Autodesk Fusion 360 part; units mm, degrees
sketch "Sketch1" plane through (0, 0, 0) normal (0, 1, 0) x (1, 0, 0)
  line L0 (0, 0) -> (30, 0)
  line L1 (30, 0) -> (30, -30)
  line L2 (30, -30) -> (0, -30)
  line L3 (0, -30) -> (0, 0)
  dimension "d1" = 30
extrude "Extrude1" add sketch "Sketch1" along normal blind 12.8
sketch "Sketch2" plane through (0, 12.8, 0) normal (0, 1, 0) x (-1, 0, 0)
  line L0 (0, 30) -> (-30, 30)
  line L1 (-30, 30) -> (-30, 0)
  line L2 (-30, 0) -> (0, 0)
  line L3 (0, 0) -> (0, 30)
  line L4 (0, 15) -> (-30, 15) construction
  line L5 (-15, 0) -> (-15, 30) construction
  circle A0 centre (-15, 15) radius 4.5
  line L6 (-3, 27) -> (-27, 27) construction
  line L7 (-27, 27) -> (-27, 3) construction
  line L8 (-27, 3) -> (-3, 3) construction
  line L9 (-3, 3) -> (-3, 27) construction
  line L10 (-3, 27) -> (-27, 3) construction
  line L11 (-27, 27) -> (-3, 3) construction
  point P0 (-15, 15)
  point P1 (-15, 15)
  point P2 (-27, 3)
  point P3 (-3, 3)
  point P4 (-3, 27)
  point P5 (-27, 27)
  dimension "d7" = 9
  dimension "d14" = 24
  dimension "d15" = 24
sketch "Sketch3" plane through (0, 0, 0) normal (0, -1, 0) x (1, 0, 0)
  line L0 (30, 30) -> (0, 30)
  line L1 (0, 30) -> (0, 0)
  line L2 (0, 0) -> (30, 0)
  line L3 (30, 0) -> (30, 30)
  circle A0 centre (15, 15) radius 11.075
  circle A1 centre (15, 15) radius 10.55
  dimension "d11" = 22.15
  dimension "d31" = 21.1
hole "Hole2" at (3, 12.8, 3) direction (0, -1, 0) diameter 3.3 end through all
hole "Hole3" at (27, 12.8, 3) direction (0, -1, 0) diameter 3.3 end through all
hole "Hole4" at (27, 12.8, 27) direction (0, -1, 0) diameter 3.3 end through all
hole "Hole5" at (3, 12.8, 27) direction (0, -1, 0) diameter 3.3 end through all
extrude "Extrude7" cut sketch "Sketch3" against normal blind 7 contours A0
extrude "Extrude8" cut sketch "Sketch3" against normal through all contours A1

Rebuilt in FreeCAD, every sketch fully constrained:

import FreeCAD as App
import Part
import Sketcher
from FreeCAD import Vector
Q = App.Units.Quantity


def add_polygon(sketch, points):
    """Adds a closed chain of lines whose ends are joined by coincident constraints."""
    first, n = sketch.GeometryCount, len(points)
    for a, b in zip(points, points[1:] + points[:1]):
        sketch.addGeometry(Part.LineSegment(App.Vector(*a, 0), App.Vector(*b, 0)), False)
    for i in range(n):
        sketch.addConstraint(Sketcher.Constraint("Coincident", first + i, 2, first + (i + 1) % n, 1))

doc = App.newDocument("Part")
body = doc.addObject("PartDesign::Body", "Body")

# Sketch on XZ plane
sketch1 = body.newObject("Sketcher::SketchObject", "Sketch")
sketch1.AttachmentSupport = (doc.getObject("XZ_Plane"), [""])
sketch1.MapMode = "FlatFace"
add_polygon(sketch1, [(30, 0), (0, 0), (0, 30), (30, 30)])  # lines 0-3
sketch1.addConstraint(Sketcher.Constraint("Horizontal", 0))
sketch1.addConstraint(Sketcher.Constraint("Vertical", 1))
sketch1.addConstraint(Sketcher.Constraint("Horizontal", 2))
sketch1.addConstraint(Sketcher.Constraint("Vertical", 3))
sketch1.addConstraint(Sketcher.Constraint("Coincident", 0, 2, -1, 1))
sketch1.addConstraint(Sketcher.Constraint("Equal", 2, 1))
sketch1.addConstraint(Sketcher.Constraint("DistanceX", 0, 2, 0, 1, Q("30 mm")))
pad1 = body.newObject("PartDesign::Pad", "Pad")
pad1.Profile = sketch1
pad1.Length = 12.8
pad1.Reversed = True

# Sketch on XZ plane
sketch2 = body.newObject("Sketcher::SketchObject", "Sketch001")
sketch2.AttachmentSupport = (doc.getObject("XZ_Plane"), [""])
sketch2.MapMode = "FlatFace"
sketch2.AttachmentOffset = App.Placement(Vector(0, 0, -12.8), App.Rotation())
sketch2.addGeometry(Part.Circle(Vector(3, 3, 0), Vector(0, 0, 1), 1.65), False)
sketch2.addConstraint(Sketcher.Constraint("Diameter", 0, Q("3.3 mm")))
sketch2.addConstraint(Sketcher.Constraint("DistanceX", -1, 1, 0, 3, Q("3 mm")))
sketch2.addConstraint(Sketcher.Constraint("DistanceY", -1, 1, 0, 3, Q("3 mm")))
doc.recompute()
hole = body.newObject("PartDesign::Hole", "Hole")
hole.Profile = sketch2
hole.ThreadType = "None"
hole.Diameter = 3.3
hole.DepthType = "ThroughAll"
hole.Reversed = True

# Sketch on XZ plane
sketch3 = body.newObject("Sketcher::SketchObject", "Sketch002")
sketch3.AttachmentSupport = (doc.getObject("XZ_Plane"), [""])
sketch3.MapMode = "FlatFace"
sketch3.AttachmentOffset = App.Placement(Vector(0, 0, -12.8), App.Rotation())
sketch3.addGeometry(Part.Circle(Vector(27, 3, 0), Vector(0, 0, 1), 1.65), False)
sketch3.addConstraint(Sketcher.Constraint("Diameter", 0, Q("3.3 mm")))
sketch3.addConstraint(Sketcher.Constraint("DistanceX", -1, 1, 0, 3, Q("27 mm")))
sketch3.addConstraint(Sketcher.Constraint("DistanceY", -1, 1, 0, 3, Q("3 mm")))
doc.recompute()
hole2 = body.newObject("PartDesign::Hole", "Hole001")
hole2.Profile = sketch3
hole2.ThreadType = "None"
hole2.Diameter = 3.3
hole2.DepthType = "ThroughAll"
hole2.Reversed = True

# Sketch on XZ plane
sketch4 = body.newObject("Sketcher::SketchObject", "Sketch003")
sketch4.AttachmentSupport = (doc.getObject("XZ_Plane"), [""])
sketch4.MapMode = "FlatFace"
sketch4.AttachmentOffset = App.Placement(Vector(0, 0, -12.8), App.Rotation())
sketch4.addGeometry(Part.Circle(Vector(27, 27, 0), Vector(0, 0, 1), 1.65), False)
sketch4.addConstraint(Sketcher.Constraint("Diameter", 0, Q("3.3 mm")))
sketch4.addConstraint(Sketcher.Constraint("DistanceX", -1, 1, 0, 3, Q("27 mm")))
sketch4.addConstraint(Sketcher.Constraint("DistanceY", -1, 1, 0, 3, Q("27 mm")))
doc.recompute()
hole3 = body.newObject("PartDesign::Hole", "Hole002")
hole3.Profile = sketch4
hole3.ThreadType = "None"
hole3.Diameter = 3.3
hole3.DepthType = "ThroughAll"
hole3.Reversed = True

# Sketch on XZ plane
sketch5 = body.newObject("Sketcher::SketchObject", "Sketch004")
sketch5.AttachmentSupport = (doc.getObject("XZ_Plane"), [""])
sketch5.MapMode = "FlatFace"
sketch5.AttachmentOffset = App.Placement(Vector(0, 0, -12.8), App.Rotation())
sketch5.addGeometry(Part.Circle(Vector(3, 27, 0), Vector(0, 0, 1), 1.65), False)
sketch5.addConstraint(Sketcher.Constraint("Diameter", 0, Q("3.3 mm")))
sketch5.addConstraint(Sketcher.Constraint("DistanceX", -1, 1, 0, 3, Q("3 mm")))
sketch5.addConstraint(Sketcher.Constraint("DistanceY", -1, 1, 0, 3, Q("27 mm")))
doc.recompute()
hole4 = body.newObject("PartDesign::Hole", "Hole003")
hole4.Profile = sketch5
hole4.ThreadType = "None"
hole4.Diameter = 3.3
hole4.DepthType = "ThroughAll"
hole4.Reversed = True

# Sketch on XZ plane
sketch6 = body.newObject("Sketcher::SketchObject", "Sketch005")
sketch6.AttachmentSupport = (doc.getObject("XZ_Plane"), [""])
sketch6.MapMode = "FlatFace"
sketch6.addGeometry(Part.Circle(Vector(15, 15, 0), Vector(0, 0, 1), 11.075), False)
sketch6.addGeometry(Part.Circle(Vector(15, 15, 0), Vector(0, 0, 1), 10.55), False)
sketch6.addConstraint(Sketcher.Constraint("Coincident", 1, 3, 0, 3))
sketch6.addConstraint(Sketcher.Constraint("Diameter", 1, Q("21.1 mm")))
sketch6.addConstraint(Sketcher.Constraint("Diameter", 0, Q("22.15 mm")))
sketch6.addConstraint(Sketcher.Constraint("DistanceX", -1, 1, 0, 3, Q("15 mm")))
sketch6.addConstraint(Sketcher.Constraint("DistanceY", -1, 1, 0, 3, Q("15 mm")))
pocket1 = body.newObject("PartDesign::Pocket", "Pocket")
pocket1.Profile = sketch6
pocket1.Length = 7

# Sketch on XZ plane
sketch7 = body.newObject("Sketcher::SketchObject", "Sketch006")
sketch7.AttachmentSupport = (doc.getObject("XZ_Plane"), [""])
sketch7.MapMode = "FlatFace"
sketch7.addGeometry(Part.Circle(Vector(15, 15, 0), Vector(0, 0, 1), 10.55), False)
sketch7.addConstraint(Sketcher.Constraint("Diameter", 0, Q("21.1 mm")))
sketch7.addConstraint(Sketcher.Constraint("DistanceX", -1, 1, 0, 3, Q("15 mm")))
sketch7.addConstraint(Sketcher.Constraint("DistanceY", -1, 1, 0, 3, Q("15 mm")))
pocket2 = body.newObject("PartDesign::Pocket", "Pocket001")
pocket2.Profile = sketch7
pocket2.Type = "ThroughAll"

doc.recompute()
